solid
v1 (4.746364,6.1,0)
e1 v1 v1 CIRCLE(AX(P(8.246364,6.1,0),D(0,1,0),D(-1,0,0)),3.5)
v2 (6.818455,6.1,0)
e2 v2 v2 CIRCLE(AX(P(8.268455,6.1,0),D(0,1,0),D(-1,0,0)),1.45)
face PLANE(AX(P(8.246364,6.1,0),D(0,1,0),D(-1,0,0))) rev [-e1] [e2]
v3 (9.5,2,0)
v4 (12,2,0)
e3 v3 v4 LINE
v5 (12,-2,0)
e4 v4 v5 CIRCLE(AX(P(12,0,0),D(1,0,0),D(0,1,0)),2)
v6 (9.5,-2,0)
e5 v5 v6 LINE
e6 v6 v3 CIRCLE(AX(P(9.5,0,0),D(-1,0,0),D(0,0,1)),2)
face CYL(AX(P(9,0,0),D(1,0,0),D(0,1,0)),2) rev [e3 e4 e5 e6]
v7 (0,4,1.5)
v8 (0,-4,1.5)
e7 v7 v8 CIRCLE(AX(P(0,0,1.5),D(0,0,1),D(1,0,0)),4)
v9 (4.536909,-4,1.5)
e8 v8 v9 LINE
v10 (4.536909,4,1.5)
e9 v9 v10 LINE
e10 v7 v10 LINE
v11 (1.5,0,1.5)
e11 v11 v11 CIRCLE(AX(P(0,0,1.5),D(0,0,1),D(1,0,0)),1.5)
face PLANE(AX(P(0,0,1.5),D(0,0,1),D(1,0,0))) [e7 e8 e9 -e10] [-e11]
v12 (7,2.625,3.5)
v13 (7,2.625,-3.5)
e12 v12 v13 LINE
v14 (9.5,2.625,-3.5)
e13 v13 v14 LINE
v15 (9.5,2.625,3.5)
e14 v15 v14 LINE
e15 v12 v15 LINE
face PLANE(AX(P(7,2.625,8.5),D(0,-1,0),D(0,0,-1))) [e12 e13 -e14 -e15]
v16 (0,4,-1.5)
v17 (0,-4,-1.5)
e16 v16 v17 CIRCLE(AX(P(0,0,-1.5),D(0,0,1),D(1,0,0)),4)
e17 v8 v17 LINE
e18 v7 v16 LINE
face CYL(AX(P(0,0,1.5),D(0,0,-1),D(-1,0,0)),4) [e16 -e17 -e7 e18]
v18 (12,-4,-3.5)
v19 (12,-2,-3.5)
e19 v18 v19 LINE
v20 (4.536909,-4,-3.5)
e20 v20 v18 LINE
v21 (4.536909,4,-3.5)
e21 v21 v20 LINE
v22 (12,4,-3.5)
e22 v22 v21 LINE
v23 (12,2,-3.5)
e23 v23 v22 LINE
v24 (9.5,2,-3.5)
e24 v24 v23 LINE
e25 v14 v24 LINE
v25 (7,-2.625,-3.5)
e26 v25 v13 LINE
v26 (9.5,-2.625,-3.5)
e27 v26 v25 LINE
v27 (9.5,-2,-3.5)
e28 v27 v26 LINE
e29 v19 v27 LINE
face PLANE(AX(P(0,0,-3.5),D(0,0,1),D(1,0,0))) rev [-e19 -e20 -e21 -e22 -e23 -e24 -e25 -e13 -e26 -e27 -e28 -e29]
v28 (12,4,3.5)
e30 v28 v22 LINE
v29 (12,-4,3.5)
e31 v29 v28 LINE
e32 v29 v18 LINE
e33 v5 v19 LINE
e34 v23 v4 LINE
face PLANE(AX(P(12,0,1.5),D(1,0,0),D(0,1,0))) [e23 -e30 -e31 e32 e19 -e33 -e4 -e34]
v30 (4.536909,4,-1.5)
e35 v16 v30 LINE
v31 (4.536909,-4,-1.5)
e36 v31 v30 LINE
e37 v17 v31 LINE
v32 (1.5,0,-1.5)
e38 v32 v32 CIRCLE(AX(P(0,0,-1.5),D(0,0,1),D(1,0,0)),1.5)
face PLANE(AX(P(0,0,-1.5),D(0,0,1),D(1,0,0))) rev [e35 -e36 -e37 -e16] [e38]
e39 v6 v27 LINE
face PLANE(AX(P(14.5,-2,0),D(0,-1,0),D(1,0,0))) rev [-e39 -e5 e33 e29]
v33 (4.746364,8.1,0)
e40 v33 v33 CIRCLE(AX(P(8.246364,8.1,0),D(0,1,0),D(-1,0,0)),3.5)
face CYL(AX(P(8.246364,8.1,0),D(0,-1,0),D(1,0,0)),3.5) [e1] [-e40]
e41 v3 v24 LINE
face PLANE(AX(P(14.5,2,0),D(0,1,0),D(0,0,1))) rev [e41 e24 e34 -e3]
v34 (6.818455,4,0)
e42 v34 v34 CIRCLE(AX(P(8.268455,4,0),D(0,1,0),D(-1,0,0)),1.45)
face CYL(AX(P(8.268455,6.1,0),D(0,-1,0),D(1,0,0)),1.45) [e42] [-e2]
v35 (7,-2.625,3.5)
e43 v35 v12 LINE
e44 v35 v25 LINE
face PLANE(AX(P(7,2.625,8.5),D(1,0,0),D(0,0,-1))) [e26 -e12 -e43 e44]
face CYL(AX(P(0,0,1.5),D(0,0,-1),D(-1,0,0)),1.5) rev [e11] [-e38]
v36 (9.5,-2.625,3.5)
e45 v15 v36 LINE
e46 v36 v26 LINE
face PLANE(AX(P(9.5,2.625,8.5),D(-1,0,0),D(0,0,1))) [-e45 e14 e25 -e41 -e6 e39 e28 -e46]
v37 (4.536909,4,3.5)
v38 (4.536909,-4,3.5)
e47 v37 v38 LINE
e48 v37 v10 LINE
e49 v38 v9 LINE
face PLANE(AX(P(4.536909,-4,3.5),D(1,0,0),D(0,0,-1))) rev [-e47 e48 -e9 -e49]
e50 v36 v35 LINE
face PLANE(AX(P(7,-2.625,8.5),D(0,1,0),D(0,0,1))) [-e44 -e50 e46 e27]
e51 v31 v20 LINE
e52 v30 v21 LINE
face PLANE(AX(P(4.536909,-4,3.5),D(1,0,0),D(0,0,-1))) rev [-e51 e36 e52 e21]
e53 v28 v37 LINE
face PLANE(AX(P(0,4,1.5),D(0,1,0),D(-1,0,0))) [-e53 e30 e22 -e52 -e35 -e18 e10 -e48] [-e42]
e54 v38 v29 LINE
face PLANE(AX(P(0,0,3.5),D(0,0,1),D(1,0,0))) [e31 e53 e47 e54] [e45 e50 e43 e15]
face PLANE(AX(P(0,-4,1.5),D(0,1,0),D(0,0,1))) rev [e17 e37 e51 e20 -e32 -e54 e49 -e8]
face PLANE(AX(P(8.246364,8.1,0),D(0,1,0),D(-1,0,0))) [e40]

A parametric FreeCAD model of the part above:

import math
import FreeCAD as App
import Part
import Sketcher
from FreeCAD import Vector


def add_polygon(sketch, points):
    """Adds a closed chain of lines whose ends are joined by coincident constraints."""
    first, n = sketch.GeometryCount, len(points)
    for a, b in zip(points, points[1:] + points[:1]):
        sketch.addGeometry(Part.LineSegment(App.Vector(*a, 0), App.Vector(*b, 0)), False)
    for i in range(n):
        sketch.addConstraint(Sketcher.Constraint("Coincident", first + i, 2, first + (i + 1) % n, 1))

doc = App.newDocument("Part")
body = doc.addObject("PartDesign::Body", "Body")

sketch1 = body.newObject("Sketcher::SketchObject", "Sketch")
sketch1.AttachmentSupport = (doc.getObject("XY_Plane"), [""])
sketch1.MapMode = "FlatFace"
sketch1.addGeometry([
    Part.LineSegment(Vector(12, 4, 0), Vector(0, 4, 0)),
    Part.ArcOfCircle(Part.Circle(Vector(0, 0, 0), Vector(0, 0, 1), 4), math.radians(90), math.radians(270)),
    Part.LineSegment(Vector(0, -4, 0), Vector(12, -4, 0)),
    Part.LineSegment(Vector(12, -4, 0), Vector(12, 4, 0)),
    Part.Circle(Vector(0, 0, 0), Vector(0, 0, 1), 1.5),
], False)
sketch1.addConstraint([
    Sketcher.Constraint("Tangent", 0, 2, 1, 1),
    Sketcher.Constraint("Tangent", 1, 2, 2, 1),
    Sketcher.Constraint("Coincident", 2, 2, 3, 1),
    Sketcher.Constraint("Coincident", 3, 2, 0, 1),
    Sketcher.Constraint("Horizontal", 0),
    Sketcher.Constraint("Horizontal", 2),
    Sketcher.Constraint("Vertical", 3),
    Sketcher.Constraint("Coincident", 1, 3, -1, 1),
    Sketcher.Constraint("Coincident", 4, 3, -1, 1),
    Sketcher.Constraint("Diameter", 4, 3.0),
    Sketcher.Constraint("Radius", 1, 4.0),
    Sketcher.Constraint("DistanceX", 0, 2, 0, 1, 12.0),
])
pad1 = body.newObject("PartDesign::Pad", "Pad")
pad1.Profile = sketch1
pad1.Length = 3
pad1.Midplane = True

sketch2 = body.newObject("Sketcher::SketchObject", "Sketch001")
sketch2.AttachmentSupport = (doc.getObject("XY_Plane"), [""])
sketch2.MapMode = "FlatFace"
add_polygon(sketch2, [(5, 4), (5, -4), (12, -4), (12, 4)])
sketch2.addConstraint([
    Sketcher.Constraint("Vertical", 0),
    Sketcher.Constraint("Horizontal", 1),
    Sketcher.Constraint("Vertical", 2),
    Sketcher.Constraint("Horizontal", 3),
    Sketcher.Constraint("DistanceY", 0, 2, 0, 1, 8.0),
    Sketcher.Constraint("DistanceY", 0, 2, -1, 1, 4.0),
    Sketcher.Constraint("DistanceX", -1, 1, 1, 2, 12.0),
    Sketcher.Constraint("DistanceX", 1, 1, 1, 2, 7.463091),
])
pad2 = body.newObject("PartDesign::Pad", "Pad001")
pad2.Profile = sketch2
pad2.Length = 7
pad2.Midplane = True

sketch3 = body.newObject("Sketcher::SketchObject", "Sketch002")
sketch3.AttachmentSupport = (doc.getObject("XY_Plane"), [""])
sketch3.MapMode = "FlatFace"
sketch3.AttachmentOffset = App.Placement(Vector(0, 0, 1.5), App.Rotation())
add_polygon(sketch3, [(7, 2.6), (7, -2.6), (9.5, -2.6), (9.5, 2.6)])
sketch3.addConstraint([
    Sketcher.Constraint("Vertical", 0),
    Sketcher.Constraint("Horizontal", 1),
    Sketcher.Constraint("Vertical", 2),
    Sketcher.Constraint("Horizontal", 3),
    Sketcher.Constraint("DistanceX", 1, 1, 1, 2, 2.5),
    Sketcher.Constraint("DistanceX", -1, 1, 0, 2, 7.0),
    Sketcher.Constraint("DistanceY", 0, 2, 0, 1, 5.25),
    Sketcher.Constraint("DistanceY", 0, 2, -1, 1, 2.625),
])
pocket1 = body.newObject("PartDesign::Pocket", "Pocket")
pocket1.Profile = sketch3
pocket1.Type = "ThroughAll"
pocket1.Midplane = True

sketch4 = body.newObject("Sketcher::SketchObject", "Sketch003")
sketch4.AttachmentSupport = (doc.getObject("YZ_Plane"), [""])
sketch4.MapMode = "FlatFace"
sketch4.AttachmentOffset = App.Placement(Vector(0, 0, 12), App.Rotation())
sketch4.addGeometry(Part.Circle(Vector(0, 0, 0), Vector(0, 0, 1), 2), False)
sketch4.addConstraint([
    Sketcher.Constraint("Coincident", 0, 3, -1, 1),
    Sketcher.Constraint("Diameter", 0, 4.0),
])
pocket2 = body.newObject("PartDesign::Pocket", "Pocket001")
pocket2.Profile = sketch4
pocket2.Length = 3

sketch5 = body.newObject("Sketcher::SketchObject", "Sketch004")
sketch5.AttachmentSupport = (doc.getObject("XY_Plane"), [""])
sketch5.MapMode = "FlatFace"
sketch5.AttachmentOffset = App.Placement(Vector(0, 0, -3.5), App.Rotation())
add_polygon(sketch5, [(14.5, 2), (14.5, -2), (9.5, -2), (9.5, 2)])
sketch5.addConstraint([
    Sketcher.Constraint("Vertical", 0),
    Sketcher.Constraint("Horizontal", 1),
    Sketcher.Constraint("Vertical", 2),
    Sketcher.Constraint("Horizontal", 3),
    Sketcher.Constraint("DistanceX", 1, 2, 1, 1, 5.0),
    Sketcher.Constraint("DistanceY", 0, 2, 0, 1, 4.0),
    Sketcher.Constraint("DistanceY", 0, 2, -1, 1, 2.0),
    Sketcher.Constraint("DistanceX", -1, 1, 0, 2, 14.5),
])
pocket3 = body.newObject("PartDesign::Pocket", "Pocket002")
pocket3.Profile = sketch5
pocket3.Length = 3.5
pocket3.Reversed = True

sketch6 = body.newObject("Sketcher::SketchObject", "Sketch005")
sketch6.AttachmentSupport = (doc.getObject("XZ_Plane"), [""])
sketch6.MapMode = "FlatFace"
sketch6.AttachmentOffset = App.Placement(Vector(0, 0, -4), App.Rotation())
sketch6.addGeometry(Part.Circle(Vector(8.3, 0, 0), Vector(0, 0, 1), 1.4), False)
sketch6.addConstraint([
    Sketcher.Constraint("PointOnObject", 0, 3, -1),
    Sketcher.Constraint("Diameter", 0, 2.9),
    Sketcher.Constraint("DistanceX", -1, 1, 0, 3, 8.268455),
])
pad3 = body.newObject("PartDesign::Pad", "Pad002")
pad3.Profile = sketch6
pad3.Length = 2.1
pad3.Reversed = True

sketch7 = body.newObject("Sketcher::SketchObject", "Sketch006")
sketch7.AttachmentSupport = (doc.getObject("XZ_Plane"), [""])
sketch7.MapMode = "FlatFace"
sketch7.AttachmentOffset = App.Placement(Vector(0, 0, -6.1), App.Rotation())
sketch7.addGeometry(Part.Circle(Vector(8.2, 0, 0), Vector(0, 0, 1), 3.5), False)
sketch7.addConstraint([
    Sketcher.Constraint("PointOnObject", 0, 3, -1),
    Sketcher.Constraint("Diameter", 0, 7.0),
    Sketcher.Constraint("DistanceX", -1, 1, 0, 3, 8.246364),
])
pad4 = body.newObject("PartDesign::Pad", "Pad003")
pad4.Profile = sketch7
pad4.Length = 2
pad4.Reversed = True

doc.recompute()
